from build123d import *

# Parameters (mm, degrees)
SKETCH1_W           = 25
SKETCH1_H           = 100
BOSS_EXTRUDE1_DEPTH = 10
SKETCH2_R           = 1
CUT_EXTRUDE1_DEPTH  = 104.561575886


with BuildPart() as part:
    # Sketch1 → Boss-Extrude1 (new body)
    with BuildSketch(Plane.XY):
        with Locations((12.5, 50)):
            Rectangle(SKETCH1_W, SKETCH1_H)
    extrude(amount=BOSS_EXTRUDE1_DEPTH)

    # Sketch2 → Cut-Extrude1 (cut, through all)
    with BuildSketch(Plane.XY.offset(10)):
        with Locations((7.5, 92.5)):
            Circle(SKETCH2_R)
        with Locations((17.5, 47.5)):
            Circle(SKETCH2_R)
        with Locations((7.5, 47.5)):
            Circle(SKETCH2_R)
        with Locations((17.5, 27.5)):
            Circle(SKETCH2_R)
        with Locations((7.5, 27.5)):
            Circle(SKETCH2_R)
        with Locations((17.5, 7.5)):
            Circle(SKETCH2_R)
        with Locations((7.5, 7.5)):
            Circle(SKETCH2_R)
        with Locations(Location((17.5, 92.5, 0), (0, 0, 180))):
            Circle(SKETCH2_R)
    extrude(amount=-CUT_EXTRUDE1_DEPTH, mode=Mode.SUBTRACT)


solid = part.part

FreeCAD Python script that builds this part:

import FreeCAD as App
import Part
import Sketcher
Q = App.Units.Quantity

doc = App.newDocument("Part")
body = doc.addObject("PartDesign::Body", "Body")

sketch1 = body.newObject("Sketcher::SketchObject", "Sketch")
sketch1.AttachmentSupport = (doc.getObject("XY_Plane"), [""])
sketch1.MapMode = "FlatFace"
sketch1.addGeometry(Part.LineSegment(App.Vector(0, 100, 0), App.Vector(0, 0, 0)), False)
sketch1.addGeometry(Part.LineSegment(App.Vector(0, 0, 0), App.Vector(25, 0, 0)), False)
sketch1.addGeometry(Part.LineSegment(App.Vector(25, 0, 0), App.Vector(25, 100, 0)), False)
sketch1.addGeometry(Part.LineSegment(App.Vector(25, 100, 0), App.Vector(0, 100, 0)), False)
sketch1.addConstraint(Sketcher.Constraint("Coincident", 0, 2, 1, 1))
sketch1.addConstraint(Sketcher.Constraint("Coincident", 1, 2, 2, 1))
sketch1.addConstraint(Sketcher.Constraint("Coincident", 2, 2, 3, 1))
sketch1.addConstraint(Sketcher.Constraint("Coincident", 3, 2, 0, 1))
sketch1.addConstraint(Sketcher.Constraint("Vertical", 0))
sketch1.addConstraint(Sketcher.Constraint("Horizontal", 1))
sketch1.addConstraint(Sketcher.Constraint("Vertical", 2))
sketch1.addConstraint(Sketcher.Constraint("Horizontal", 3))
sketch1.addConstraint(Sketcher.Constraint("Coincident", 0, 2, -1, 1))
sketch1.addConstraint(Sketcher.Constraint("DistanceX", 1, 1, 1, 2, Q("25 mm")))
sketch1.addConstraint(Sketcher.Constraint("DistanceY", 0, 2, 0, 1, Q("100 mm")))
pad1 = body.newObject("PartDesign::Pad", "Pad")
pad1.Profile = sketch1
pad1.Length = 10

sketch2 = body.newObject("Sketcher::SketchObject", "Sketch001")
sketch2.AttachmentSupport = (doc.getObject("XY_Plane"), [""])
sketch2.MapMode = "FlatFace"
sketch2.AttachmentOffset = App.Placement(App.Vector(0, 0, 10), App.Rotation())
sketch2.addGeometry(Part.Circle(App.Vector(7.5, 92.5, 0), App.Vector(0, 0, 1), 1), False)
sketch2.addGeometry(Part.Circle(App.Vector(17.5, 47.5, 0), App.Vector(0, 0, 1), 1), False)
sketch2.addGeometry(Part.Circle(App.Vector(7.5, 47.5, 0), App.Vector(0, 0, 1), 1), False)
sketch2.addGeometry(Part.Circle(App.Vector(17.5, 27.5, 0), App.Vector(0, 0, 1), 1), False)
sketch2.addGeometry(Part.Circle(App.Vector(7.5, 27.5, 0), App.Vector(0, 0, 1), 1), False)
sketch2.addGeometry(Part.Circle(App.Vector(17.5, 7.5, 0), App.Vector(0, 0, 1), 1), False)
sketch2.addGeometry(Part.Circle(App.Vector(7.5, 7.5, 0), App.Vector(0, 0, 1), 1), False)
sketch2.addGeometry(Part.Circle(App.Vector(17.5, 92.5, 0), App.Vector(0, 0, 1), 1), False)
sketch2.addConstraint(Sketcher.Constraint("Equal", 0, 1))
sketch2.addConstraint(Sketcher.Constraint("Equal", 1, 2))
sketch2.addConstraint(Sketcher.Constraint("Equal", 2, 3))
sketch2.addConstraint(Sketcher.Constraint("Equal", 3, 4))
sketch2.addConstraint(Sketcher.Constraint("Equal", 4, 5))
sketch2.addConstraint(Sketcher.Constraint("Equal", 5, 6))
sketch2.addConstraint(Sketcher.Constraint("Equal", 6, 7))
sketch2.addConstraint(Sketcher.Constraint("Horizontal", 1, 3, 2, 3))
sketch2.addConstraint(Sketcher.Constraint("Horizontal", 3, 3, 4, 3))
sketch2.addConstraint(Sketcher.Constraint("Horizontal", 5, 3, 6, 3))
sketch2.addConstraint(Sketcher.Constraint("Horizontal", 0, 3, 7, 3))
sketch2.addConstraint(Sketcher.Constraint("Vertical", 0, 3, 2, 3))
sketch2.addConstraint(Sketcher.Constraint("Vertical", 1, 3, 3, 3))
sketch2.addConstraint(Sketcher.Constraint("Vertical", 2, 3, 4, 3))
sketch2.addConstraint(Sketcher.Constraint("Vertical", 3, 3, 5, 3))
sketch2.addConstraint(Sketcher.Constraint("Vertical", 4, 3, 6, 3))
sketch2.addConstraint(Sketcher.Constraint("Vertical", 5, 3, 7, 3))
sketch2.addConstraint(Sketcher.Constraint("Diameter", 0, Q("2 mm")))
sketch2.addConstraint(Sketcher.Constraint("DistanceX", 0, 3, 1, 3, Q("10 mm")))
sketch2.addConstraint(Sketcher.Constraint("DistanceY", 1, 3, 0, 3, Q("45 mm")))
sketch2.addConstraint(Sketcher.Constraint("DistanceY", 3, 3, 1, 3, Q("20 mm")))
sketch2.addConstraint(Sketcher.Constraint("DistanceY", 5, 3, 3, 3, Q("20 mm")))
sketch2.addConstraint(Sketcher.Constraint("DistanceX", -1, 1, 0, 3, Q("7.5 mm")))
sketch2.addConstraint(Sketcher.Constraint("DistanceY", -1, 1, 0, 3, Q("92.5 mm")))
pocket1 = body.newObject("PartDesign::Pocket", "Pocket")
pocket1.Profile = sketch2
pocket1.Type = "ThroughAll"

doc.recompute()
